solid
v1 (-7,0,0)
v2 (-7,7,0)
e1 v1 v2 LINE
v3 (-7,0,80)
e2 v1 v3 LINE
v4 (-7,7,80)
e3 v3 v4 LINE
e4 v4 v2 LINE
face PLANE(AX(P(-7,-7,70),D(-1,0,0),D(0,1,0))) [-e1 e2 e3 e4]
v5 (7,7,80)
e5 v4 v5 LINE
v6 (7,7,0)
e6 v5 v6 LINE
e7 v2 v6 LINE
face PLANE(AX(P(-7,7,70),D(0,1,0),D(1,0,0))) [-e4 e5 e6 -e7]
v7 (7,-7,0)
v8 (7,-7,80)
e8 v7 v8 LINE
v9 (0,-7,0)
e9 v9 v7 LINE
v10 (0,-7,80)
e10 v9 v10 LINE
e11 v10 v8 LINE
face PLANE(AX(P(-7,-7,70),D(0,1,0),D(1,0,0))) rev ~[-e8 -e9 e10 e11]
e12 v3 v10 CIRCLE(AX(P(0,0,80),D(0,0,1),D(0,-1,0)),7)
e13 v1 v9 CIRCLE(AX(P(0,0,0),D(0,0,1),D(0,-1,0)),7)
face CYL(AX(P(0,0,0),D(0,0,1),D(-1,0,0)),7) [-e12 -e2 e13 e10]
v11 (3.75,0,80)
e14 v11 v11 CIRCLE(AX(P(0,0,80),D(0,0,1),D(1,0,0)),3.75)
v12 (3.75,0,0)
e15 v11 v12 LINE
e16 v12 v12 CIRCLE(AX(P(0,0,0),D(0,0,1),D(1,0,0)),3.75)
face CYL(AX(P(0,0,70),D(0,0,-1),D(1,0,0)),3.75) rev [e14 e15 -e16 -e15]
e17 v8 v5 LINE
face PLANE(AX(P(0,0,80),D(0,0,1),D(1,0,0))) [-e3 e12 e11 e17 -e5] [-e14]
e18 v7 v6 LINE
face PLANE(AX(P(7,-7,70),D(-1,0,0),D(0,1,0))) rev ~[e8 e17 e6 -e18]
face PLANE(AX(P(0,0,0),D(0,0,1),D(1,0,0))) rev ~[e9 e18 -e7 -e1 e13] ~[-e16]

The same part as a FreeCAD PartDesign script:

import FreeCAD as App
import Part
import Sketcher


def edges_at(feature, points):
    """Names of the edges that pass closest to the given points."""
    edges = feature.Shape.Edges
    near = lambda p: min(range(len(edges)), key=lambda i: edges[i].distToShape(Part.Vertex(*p))[0])
    return sorted({f"Edge{near(p) + 1}" for p in points})


def add_polygon(sketch, points):
    """Adds a closed chain of lines whose ends are joined by coincident constraints."""
    first, n = sketch.GeometryCount, len(points)
    for a, b in zip(points, points[1:] + points[:1]):
        sketch.addGeometry(Part.LineSegment(App.Vector(*a, 0), App.Vector(*b, 0)), False)
    for i in range(n):
        sketch.addConstraint(Sketcher.Constraint("Coincident", first + i, 2, first + (i + 1) % n, 1))

doc = App.newDocument("Part")
body = doc.addObject("PartDesign::Body", "Body")

# Sketch on XY plane
sketch1 = doc.addObject("Sketcher::SketchObject", "Sketch")
body.addObject(sketch1)
sketch1.AttachmentSupport = (doc.XY_Plane, [""])
sketch1.MapMode = "FlatFace"
add_polygon(sketch1, [(-7, 7), (-7, -7), (7, -7), (7, 7)])  # lines 0-3
sketch1.addGeometry(Part.Circle(App.Vector(0, 0, 0), App.Vector(0, 0, 1), 3.8), False)  # 4
sketch1.addConstraint([
    Sketcher.Constraint("Vertical", 0),
    Sketcher.Constraint("Horizontal", 1),
    Sketcher.Constraint("Vertical", 2),
    Sketcher.Constraint("Horizontal", 3),
    Sketcher.Constraint("Coincident", 4, 3, -1, 1),
    Sketcher.Constraint("Symmetric", 0, 2, 2, 2, -1, 1),
    Sketcher.Constraint("Equal", 3, 0),
    Sketcher.Constraint("Diameter", 4, 7.5),
    Sketcher.Constraint("DistanceX", 1, 1, 1, 2, 14.0),
])
pad1 = doc.addObject("PartDesign::Pad", "Pad")
body.addObject(pad1)
pad1.Profile = sketch1
pad1.Length = 70

# Sketch on XY plane
sketch2 = doc.addObject("Sketcher::SketchObject", "Sketch001")
body.addObject(sketch2)
sketch2.AttachmentSupport = (doc.XY_Plane, [""])
sketch2.MapMode = "FlatFace"
sketch2.AttachmentOffset = App.Placement(App.Vector(0, 0, 70), App.Rotation())
add_polygon(sketch2, [(-7, 7), (-7, -7), (7, -7), (7, 7)])  # lines 0-3
sketch2.addGeometry(Part.Circle(App.Vector(0, 0, 0), App.Vector(0, 0, 1), 3.8), False)  # 4
sketch2.addConstraint([
    Sketcher.Constraint("Vertical", 0),
    Sketcher.Constraint("Horizontal", 1),
    Sketcher.Constraint("Vertical", 2),
    Sketcher.Constraint("Horizontal", 3),
    Sketcher.Constraint("Coincident", 4, 3, -1, 1),
    Sketcher.Constraint("Symmetric", 0, 2, 2, 2, -1, 1),
    Sketcher.Constraint("Equal", 3, 0),
    Sketcher.Constraint("Diameter", 4, 7.5),
    Sketcher.Constraint("DistanceX", 1, 1, 1, 2, 14.0),
])
pad2 = doc.addObject("PartDesign::Pad", "Pad001")
body.addObject(pad2)
pad2.Profile = sketch2
pad2.Length = 10
doc.recompute()

fillet = doc.addObject("PartDesign::Fillet", "Fillet")
body.addObject(fillet)
fillet.Base = (pad2, edges_at(pad2, [(-7, -7, 40)]))
fillet.Radius = 7

doc.recompute()
